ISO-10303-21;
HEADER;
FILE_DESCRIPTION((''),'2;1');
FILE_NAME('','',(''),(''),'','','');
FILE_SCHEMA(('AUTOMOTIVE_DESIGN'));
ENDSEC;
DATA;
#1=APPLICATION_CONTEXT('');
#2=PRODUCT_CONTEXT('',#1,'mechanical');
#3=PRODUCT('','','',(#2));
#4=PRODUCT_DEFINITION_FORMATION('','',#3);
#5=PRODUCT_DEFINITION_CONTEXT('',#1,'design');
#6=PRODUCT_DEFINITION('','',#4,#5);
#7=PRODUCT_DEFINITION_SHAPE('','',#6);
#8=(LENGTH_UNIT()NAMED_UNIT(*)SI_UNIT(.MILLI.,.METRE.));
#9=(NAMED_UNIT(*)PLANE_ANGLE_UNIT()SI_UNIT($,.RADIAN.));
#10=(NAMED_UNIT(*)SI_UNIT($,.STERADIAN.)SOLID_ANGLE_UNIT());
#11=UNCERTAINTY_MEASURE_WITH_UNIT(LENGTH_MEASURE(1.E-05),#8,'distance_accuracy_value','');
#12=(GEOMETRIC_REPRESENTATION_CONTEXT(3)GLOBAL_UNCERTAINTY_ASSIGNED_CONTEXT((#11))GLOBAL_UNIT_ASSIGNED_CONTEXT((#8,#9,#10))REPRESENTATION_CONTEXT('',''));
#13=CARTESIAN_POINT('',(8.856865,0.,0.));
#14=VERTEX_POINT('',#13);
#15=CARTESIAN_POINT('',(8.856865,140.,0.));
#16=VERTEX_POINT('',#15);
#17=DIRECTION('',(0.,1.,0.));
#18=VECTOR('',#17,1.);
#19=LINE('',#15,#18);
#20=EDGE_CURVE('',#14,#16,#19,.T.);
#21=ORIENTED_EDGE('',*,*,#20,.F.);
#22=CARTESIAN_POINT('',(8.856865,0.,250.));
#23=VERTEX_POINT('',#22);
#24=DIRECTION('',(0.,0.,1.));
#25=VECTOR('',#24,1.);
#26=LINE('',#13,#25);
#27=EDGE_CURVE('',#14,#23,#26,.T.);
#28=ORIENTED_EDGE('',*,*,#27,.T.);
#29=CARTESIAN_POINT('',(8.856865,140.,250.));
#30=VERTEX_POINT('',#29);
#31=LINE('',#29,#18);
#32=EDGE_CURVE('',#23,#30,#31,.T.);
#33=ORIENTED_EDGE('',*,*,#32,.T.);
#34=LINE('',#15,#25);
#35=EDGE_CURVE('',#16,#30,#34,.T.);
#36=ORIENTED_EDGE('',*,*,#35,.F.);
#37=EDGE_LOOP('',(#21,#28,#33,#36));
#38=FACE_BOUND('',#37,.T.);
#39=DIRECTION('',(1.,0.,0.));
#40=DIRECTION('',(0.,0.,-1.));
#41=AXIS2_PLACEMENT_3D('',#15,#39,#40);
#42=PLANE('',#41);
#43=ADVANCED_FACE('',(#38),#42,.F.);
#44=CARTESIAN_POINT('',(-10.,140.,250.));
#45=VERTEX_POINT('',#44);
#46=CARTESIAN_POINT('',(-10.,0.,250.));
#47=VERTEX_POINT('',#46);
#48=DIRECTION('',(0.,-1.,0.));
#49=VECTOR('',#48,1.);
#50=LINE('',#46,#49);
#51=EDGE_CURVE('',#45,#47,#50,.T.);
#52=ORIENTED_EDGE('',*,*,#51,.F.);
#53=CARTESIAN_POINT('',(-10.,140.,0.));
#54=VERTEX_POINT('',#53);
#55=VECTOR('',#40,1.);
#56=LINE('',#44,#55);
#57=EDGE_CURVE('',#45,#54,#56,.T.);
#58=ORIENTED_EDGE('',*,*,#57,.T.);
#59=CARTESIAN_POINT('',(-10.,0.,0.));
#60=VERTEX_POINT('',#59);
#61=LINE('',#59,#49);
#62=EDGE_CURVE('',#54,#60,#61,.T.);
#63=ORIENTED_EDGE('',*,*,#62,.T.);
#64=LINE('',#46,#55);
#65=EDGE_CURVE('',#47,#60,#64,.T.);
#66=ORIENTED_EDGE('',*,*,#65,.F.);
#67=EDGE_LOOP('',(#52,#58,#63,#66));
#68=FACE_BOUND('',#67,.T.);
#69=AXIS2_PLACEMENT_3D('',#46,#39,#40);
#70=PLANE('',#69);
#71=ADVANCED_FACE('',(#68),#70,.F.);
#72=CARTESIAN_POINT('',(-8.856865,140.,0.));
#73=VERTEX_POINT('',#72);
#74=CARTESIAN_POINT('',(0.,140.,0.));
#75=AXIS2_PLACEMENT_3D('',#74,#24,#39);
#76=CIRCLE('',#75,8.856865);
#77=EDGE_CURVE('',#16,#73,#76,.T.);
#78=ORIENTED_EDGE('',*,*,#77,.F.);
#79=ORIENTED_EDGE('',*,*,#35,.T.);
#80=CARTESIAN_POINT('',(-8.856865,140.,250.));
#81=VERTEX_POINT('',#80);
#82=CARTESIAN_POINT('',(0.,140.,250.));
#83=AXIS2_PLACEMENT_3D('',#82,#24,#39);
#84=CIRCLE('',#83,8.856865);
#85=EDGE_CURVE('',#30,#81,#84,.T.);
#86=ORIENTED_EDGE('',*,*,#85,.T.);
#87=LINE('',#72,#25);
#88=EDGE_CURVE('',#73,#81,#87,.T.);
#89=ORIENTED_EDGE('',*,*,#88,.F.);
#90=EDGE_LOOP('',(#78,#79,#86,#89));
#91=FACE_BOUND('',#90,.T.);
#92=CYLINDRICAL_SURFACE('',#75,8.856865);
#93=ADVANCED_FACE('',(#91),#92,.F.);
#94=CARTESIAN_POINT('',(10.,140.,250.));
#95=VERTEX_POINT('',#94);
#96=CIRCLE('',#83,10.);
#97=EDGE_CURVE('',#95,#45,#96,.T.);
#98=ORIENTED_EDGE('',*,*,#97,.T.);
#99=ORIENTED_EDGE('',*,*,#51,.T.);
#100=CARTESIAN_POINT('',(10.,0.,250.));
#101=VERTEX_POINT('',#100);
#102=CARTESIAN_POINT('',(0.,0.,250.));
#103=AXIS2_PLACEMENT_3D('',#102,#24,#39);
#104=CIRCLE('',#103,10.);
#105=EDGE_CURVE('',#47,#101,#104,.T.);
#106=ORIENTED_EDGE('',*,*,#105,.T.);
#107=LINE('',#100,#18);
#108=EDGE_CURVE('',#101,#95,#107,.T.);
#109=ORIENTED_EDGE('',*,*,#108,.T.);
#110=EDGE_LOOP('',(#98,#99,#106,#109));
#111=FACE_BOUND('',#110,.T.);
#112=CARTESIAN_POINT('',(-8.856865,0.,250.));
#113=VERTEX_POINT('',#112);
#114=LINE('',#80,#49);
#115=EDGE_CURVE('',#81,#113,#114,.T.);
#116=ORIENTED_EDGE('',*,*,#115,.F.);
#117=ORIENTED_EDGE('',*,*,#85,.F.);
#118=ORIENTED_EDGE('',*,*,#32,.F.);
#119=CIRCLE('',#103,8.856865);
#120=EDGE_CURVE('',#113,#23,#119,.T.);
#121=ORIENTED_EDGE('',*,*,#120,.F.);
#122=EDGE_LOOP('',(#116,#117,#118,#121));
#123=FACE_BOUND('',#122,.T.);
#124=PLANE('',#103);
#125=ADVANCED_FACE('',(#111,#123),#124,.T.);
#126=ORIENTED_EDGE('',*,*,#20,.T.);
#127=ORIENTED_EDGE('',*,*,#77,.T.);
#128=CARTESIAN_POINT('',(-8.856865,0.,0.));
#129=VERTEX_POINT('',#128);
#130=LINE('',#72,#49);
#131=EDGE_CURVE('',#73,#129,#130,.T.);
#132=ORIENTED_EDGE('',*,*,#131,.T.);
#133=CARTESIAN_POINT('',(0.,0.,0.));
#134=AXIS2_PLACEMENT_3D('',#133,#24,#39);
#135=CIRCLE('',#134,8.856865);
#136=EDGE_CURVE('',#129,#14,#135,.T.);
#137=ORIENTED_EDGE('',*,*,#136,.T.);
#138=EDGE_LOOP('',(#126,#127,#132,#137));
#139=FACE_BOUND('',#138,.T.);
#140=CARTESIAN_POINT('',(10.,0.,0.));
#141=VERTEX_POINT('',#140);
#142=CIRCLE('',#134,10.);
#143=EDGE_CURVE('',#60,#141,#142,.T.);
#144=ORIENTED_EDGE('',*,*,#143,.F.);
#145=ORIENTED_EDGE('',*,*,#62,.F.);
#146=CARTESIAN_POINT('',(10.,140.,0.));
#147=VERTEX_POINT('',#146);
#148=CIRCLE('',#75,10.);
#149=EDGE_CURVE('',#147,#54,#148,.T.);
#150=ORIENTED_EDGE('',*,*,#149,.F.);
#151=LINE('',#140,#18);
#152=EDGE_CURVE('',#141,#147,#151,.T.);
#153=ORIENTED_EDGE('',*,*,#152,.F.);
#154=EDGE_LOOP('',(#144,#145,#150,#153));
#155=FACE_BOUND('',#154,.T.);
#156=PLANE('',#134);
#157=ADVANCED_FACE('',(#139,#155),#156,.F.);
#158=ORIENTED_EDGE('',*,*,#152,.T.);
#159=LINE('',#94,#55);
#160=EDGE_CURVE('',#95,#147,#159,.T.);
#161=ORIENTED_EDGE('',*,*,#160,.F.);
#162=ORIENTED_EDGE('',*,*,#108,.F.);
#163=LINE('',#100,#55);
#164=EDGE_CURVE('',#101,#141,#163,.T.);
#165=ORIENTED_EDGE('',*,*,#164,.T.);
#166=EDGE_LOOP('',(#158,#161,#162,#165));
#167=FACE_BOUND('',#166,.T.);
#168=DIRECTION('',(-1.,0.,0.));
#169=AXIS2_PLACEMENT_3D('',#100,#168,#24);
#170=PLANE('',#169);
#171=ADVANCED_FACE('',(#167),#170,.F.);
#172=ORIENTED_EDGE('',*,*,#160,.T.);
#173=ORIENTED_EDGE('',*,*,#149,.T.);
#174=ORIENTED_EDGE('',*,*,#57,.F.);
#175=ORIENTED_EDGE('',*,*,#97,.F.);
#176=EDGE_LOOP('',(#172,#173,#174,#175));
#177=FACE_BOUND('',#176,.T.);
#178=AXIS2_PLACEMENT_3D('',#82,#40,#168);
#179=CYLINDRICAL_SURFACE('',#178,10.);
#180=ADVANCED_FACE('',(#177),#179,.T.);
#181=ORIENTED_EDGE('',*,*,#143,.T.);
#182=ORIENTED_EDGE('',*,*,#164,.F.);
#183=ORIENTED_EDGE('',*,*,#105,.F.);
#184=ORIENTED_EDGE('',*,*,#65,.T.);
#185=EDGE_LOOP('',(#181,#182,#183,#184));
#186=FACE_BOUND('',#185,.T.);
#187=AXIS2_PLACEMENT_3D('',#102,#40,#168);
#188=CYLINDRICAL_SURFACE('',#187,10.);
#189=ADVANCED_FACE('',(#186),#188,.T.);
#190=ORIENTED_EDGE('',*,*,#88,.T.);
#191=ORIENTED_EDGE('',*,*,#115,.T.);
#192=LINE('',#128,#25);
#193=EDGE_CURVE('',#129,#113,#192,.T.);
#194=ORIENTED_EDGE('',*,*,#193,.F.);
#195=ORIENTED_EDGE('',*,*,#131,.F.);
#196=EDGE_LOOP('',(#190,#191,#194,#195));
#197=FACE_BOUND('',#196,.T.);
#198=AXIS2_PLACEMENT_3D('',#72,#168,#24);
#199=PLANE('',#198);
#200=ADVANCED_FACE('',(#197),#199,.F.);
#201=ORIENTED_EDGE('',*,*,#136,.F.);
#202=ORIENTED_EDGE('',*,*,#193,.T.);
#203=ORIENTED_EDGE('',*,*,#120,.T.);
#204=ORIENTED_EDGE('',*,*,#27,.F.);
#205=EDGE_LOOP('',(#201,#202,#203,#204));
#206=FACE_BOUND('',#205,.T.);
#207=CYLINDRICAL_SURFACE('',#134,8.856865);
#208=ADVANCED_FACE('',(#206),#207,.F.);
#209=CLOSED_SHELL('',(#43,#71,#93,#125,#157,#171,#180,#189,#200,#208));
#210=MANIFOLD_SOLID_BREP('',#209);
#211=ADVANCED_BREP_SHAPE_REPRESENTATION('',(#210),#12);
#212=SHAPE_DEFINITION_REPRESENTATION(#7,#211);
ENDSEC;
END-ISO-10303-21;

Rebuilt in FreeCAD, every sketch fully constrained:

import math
import FreeCAD as App
import Part
import Sketcher
Q = App.Units.Quantity

doc = App.newDocument("Part")
body = doc.addObject("PartDesign::Body", "Body")

sketch1 = body.newObject("Sketcher::SketchObject", "Sketch")
sketch1.AttachmentSupport = (doc.getObject("XY_Plane"), [""])
sketch1.MapMode = "FlatFace"
sketch1.addGeometry([
    Part.LineSegment(App.Vector(-10, 140, 0), App.Vector(-10, 0, 0)),
    Part.ArcOfCircle(Part.Circle(App.Vector(0, 0, 0), App.Vector(0, 0, 1), 10), math.radians(180), math.radians(360)),
    Part.LineSegment(App.Vector(10, 0, 0), App.Vector(10, 140, 0)),
    Part.ArcOfCircle(Part.Circle(App.Vector(0, 140, 0), App.Vector(0, 0, 1), 10), math.radians(0), math.radians(180)),
], False)
sketch1.addConstraint([
    Sketcher.Constraint("Tangent", 0, 2, 1, 1),
    Sketcher.Constraint("Tangent", 1, 2, 2, 1),
    Sketcher.Constraint("Tangent", 2, 2, 3, 1),
    Sketcher.Constraint("Tangent", 3, 2, 0, 1),
    Sketcher.Constraint("Vertical", 0),
    Sketcher.Constraint("Vertical", 2),
    Sketcher.Constraint("Coincident", 1, 3, -1, 1),
    Sketcher.Constraint("Radius", 1, Q("10 mm")),
    Sketcher.Constraint("DistanceY", 0, 2, 0, 1, Q("140 mm")),
])
pad1 = body.newObject("PartDesign::Pad", "Pad")
pad1.Profile = sketch1
pad1.Length = 250

sketch2 = body.newObject("Sketcher::SketchObject", "Sketch001")
sketch2.AttachmentSupport = (doc.getObject("XY_Plane"), [""])
sketch2.MapMode = "FlatFace"
sketch2.AttachmentOffset = App.Placement(App.Vector(0, 0, 250), App.Rotation())
sketch2.addGeometry([
    Part.LineSegment(App.Vector(9, 0, 0), App.Vector(9, 140, 0)),
    Part.ArcOfCircle(Part.Circle(App.Vector(0, 140, 0), App.Vector(0, 0, 1), 9), math.radians(0), math.radians(180)),
    Part.LineSegment(App.Vector(-9, 140, 0), App.Vector(-9, 0, 0)),
    Part.ArcOfCircle(Part.Circle(App.Vector(0, 0, 0), App.Vector(0, 0, 1), 9), math.radians(180), math.radians(360)),
], False)
sketch2.addConstraint([
    Sketcher.Constraint("Tangent", 0, 2, 1, 1),
    Sketcher.Constraint("Tangent", 1, 2, 2, 1),
    Sketcher.Constraint("Tangent", 2, 2, 3, 1),
    Sketcher.Constraint("Tangent", 3, 2, 0, 1),
    Sketcher.Constraint("Vertical", 0),
    Sketcher.Constraint("Vertical", 2),
    Sketcher.Constraint("Coincident", 3, 3, -1, 1),
    Sketcher.Constraint("DistanceY", 0, 1, 0, 2, Q("140 mm")),
    Sketcher.Constraint("Radius", 1, Q("8.856865 mm")),
])
pocket1 = body.newObject("PartDesign::Pocket", "Pocket")
pocket1.Profile = sketch2
pocket1.Length = 250

doc.recompute()
